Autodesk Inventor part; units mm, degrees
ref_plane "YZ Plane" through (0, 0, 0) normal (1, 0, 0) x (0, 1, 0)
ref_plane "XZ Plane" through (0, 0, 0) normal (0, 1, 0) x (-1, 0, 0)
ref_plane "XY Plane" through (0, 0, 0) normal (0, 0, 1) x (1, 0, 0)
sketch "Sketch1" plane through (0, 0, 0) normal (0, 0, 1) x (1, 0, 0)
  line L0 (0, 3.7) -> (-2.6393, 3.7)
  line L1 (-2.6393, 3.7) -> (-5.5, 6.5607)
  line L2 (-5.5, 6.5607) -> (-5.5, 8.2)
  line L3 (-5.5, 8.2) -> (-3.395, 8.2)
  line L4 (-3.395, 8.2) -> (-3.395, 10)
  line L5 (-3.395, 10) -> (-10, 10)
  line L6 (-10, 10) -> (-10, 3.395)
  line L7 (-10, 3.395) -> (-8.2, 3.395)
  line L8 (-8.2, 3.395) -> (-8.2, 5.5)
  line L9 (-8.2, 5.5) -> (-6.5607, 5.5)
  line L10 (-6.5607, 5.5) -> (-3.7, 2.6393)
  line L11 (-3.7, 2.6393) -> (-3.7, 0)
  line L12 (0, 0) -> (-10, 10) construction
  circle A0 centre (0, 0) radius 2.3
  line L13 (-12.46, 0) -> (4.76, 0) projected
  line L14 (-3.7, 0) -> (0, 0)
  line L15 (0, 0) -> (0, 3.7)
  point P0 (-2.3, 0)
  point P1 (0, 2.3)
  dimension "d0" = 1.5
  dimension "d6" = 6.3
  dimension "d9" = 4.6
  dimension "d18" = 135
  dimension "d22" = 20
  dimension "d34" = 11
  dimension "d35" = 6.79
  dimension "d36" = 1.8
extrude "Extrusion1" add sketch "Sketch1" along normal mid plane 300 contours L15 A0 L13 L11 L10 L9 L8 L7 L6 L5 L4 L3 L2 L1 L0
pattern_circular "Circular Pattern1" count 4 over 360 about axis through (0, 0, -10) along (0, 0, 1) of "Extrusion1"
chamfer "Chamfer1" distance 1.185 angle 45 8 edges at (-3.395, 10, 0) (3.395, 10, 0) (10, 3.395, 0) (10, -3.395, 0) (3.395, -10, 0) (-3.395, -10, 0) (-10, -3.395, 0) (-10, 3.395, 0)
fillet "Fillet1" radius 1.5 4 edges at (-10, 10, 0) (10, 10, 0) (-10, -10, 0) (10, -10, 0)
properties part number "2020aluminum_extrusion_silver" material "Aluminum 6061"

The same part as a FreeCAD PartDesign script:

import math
import FreeCAD as App
import Part
import Sketcher
Q = App.Units.Quantity


def edges_at(feature, points):
    """Names of the edges that pass closest to the given points."""
    edges = feature.Shape.Edges
    near = lambda p: min(range(len(edges)), key=lambda i: edges[i].distToShape(Part.Vertex(*p))[0])
    return sorted({f"Edge{near(p) + 1}" for p in points})

doc = App.newDocument("Part")
body = doc.addObject("PartDesign::Body", "Body")

# Sketch on XY plane
sketch1 = body.newObject("Sketcher::SketchObject", "Sketch")
sketch1.AttachmentSupport = (doc.getObject("XY_Plane"), [""])
sketch1.MapMode = "FlatFace"
sketch1.addGeometry(Part.LineSegment(App.Vector(0, 2.3, 0), App.Vector(0, 3.7, 0)), False)
sketch1.addGeometry(Part.LineSegment(App.Vector(0, 3.7, 0), App.Vector(-2.6393, 3.7, 0)), False)
sketch1.addGeometry(Part.LineSegment(App.Vector(-2.6393, 3.7, 0), App.Vector(-5.5, 6.5607, 0)), False)
sketch1.addGeometry(Part.LineSegment(App.Vector(-5.5, 6.5607, 0), App.Vector(-5.5, 8.2, 0)), False)
sketch1.addGeometry(Part.LineSegment(App.Vector(-5.5, 8.2, 0), App.Vector(-3.395, 8.2, 0)), False)
sketch1.addGeometry(Part.LineSegment(App.Vector(-3.395, 8.2, 0), App.Vector(-3.395, 10, 0)), False)
sketch1.addGeometry(Part.LineSegment(App.Vector(-3.395, 10, 0), App.Vector(-10, 10, 0)), False)
sketch1.addGeometry(Part.LineSegment(App.Vector(-10, 10, 0), App.Vector(-10, 3.395, 0)), False)
sketch1.addGeometry(Part.LineSegment(App.Vector(-10, 3.395, 0), App.Vector(-8.2, 3.395, 0)), False)
sketch1.addGeometry(Part.LineSegment(App.Vector(-8.2, 3.395, 0), App.Vector(-8.2, 5.5, 0)), False)
sketch1.addGeometry(Part.LineSegment(App.Vector(-8.2, 5.5, 0), App.Vector(-6.5607, 5.5, 0)), False)
sketch1.addGeometry(Part.LineSegment(App.Vector(-6.5607, 5.5, 0), App.Vector(-3.7, 2.6393, 0)), False)
sketch1.addGeometry(Part.LineSegment(App.Vector(-3.7, 2.6393, 0), App.Vector(-3.7, 0, 0)), False)
sketch1.addGeometry(Part.LineSegment(App.Vector(-3.7, 0, 0), App.Vector(-2.3, 0, 0)), False)
sketch1.addGeometry(Part.ArcOfCircle(Part.Circle(App.Vector(0, 0, 0), App.Vector(0, 0, 1), 2.3), math.radians(90), math.radians(180)), False)
sketch1.addConstraint(Sketcher.Constraint("Coincident", 0, 2, 1, 1))
sketch1.addConstraint(Sketcher.Constraint("Coincident", 1, 2, 2, 1))
sketch1.addConstraint(Sketcher.Constraint("Coincident", 2, 2, 3, 1))
sketch1.addConstraint(Sketcher.Constraint("Coincident", 3, 2, 4, 1))
sketch1.addConstraint(Sketcher.Constraint("Coincident", 4, 2, 5, 1))
sketch1.addConstraint(Sketcher.Constraint("Coincident", 5, 2, 6, 1))
sketch1.addConstraint(Sketcher.Constraint("Coincident", 6, 2, 7, 1))
sketch1.addConstraint(Sketcher.Constraint("Coincident", 7, 2, 8, 1))
sketch1.addConstraint(Sketcher.Constraint("Coincident", 8, 2, 9, 1))
sketch1.addConstraint(Sketcher.Constraint("Coincident", 9, 2, 10, 1))
sketch1.addConstraint(Sketcher.Constraint("Coincident", 10, 2, 11, 1))
sketch1.addConstraint(Sketcher.Constraint("Coincident", 11, 2, 12, 1))
sketch1.addConstraint(Sketcher.Constraint("Coincident", 12, 2, 13, 1))
sketch1.addConstraint(Sketcher.Constraint("Coincident", 13, 2, 14, 2))
sketch1.addConstraint(Sketcher.Constraint("Coincident", 14, 1, 0, 1))
sketch1.addConstraint(Sketcher.Constraint("Vertical", 0))
sketch1.addConstraint(Sketcher.Constraint("Horizontal", 1))
sketch1.addConstraint(Sketcher.Constraint("Vertical", 3))
sketch1.addConstraint(Sketcher.Constraint("Horizontal", 4))
sketch1.addConstraint(Sketcher.Constraint("Vertical", 5))
sketch1.addConstraint(Sketcher.Constraint("Horizontal", 6))
sketch1.addConstraint(Sketcher.Constraint("Vertical", 7))
sketch1.addConstraint(Sketcher.Constraint("Horizontal", 8))
sketch1.addConstraint(Sketcher.Constraint("Vertical", 9))
sketch1.addConstraint(Sketcher.Constraint("Horizontal", 10))
sketch1.addConstraint(Sketcher.Constraint("Vertical", 12))
sketch1.addConstraint(Sketcher.Constraint("Horizontal", 13))
sketch1.addConstraint(Sketcher.Constraint("Coincident", 14, 3, -1, 1))
sketch1.addConstraint(Sketcher.Constraint("PointOnObject", 0, 2, -2))
sketch1.addConstraint(Sketcher.Constraint("PointOnObject", 12, 2, -1))
sketch1.addConstraint(Sketcher.Constraint("Parallel", 2, 11))
sketch1.addConstraint(Sketcher.Constraint("Equal", 13, 0))
sketch1.addConstraint(Sketcher.Constraint("Equal", 10, 3))
sketch1.addConstraint(Sketcher.Constraint("Equal", 8, 5))
sketch1.addConstraint(Sketcher.Constraint("Equal", 6, 7))
sketch1.addConstraint(Sketcher.Constraint("Equal", 4, 9))
sketch1.addConstraint(Sketcher.Constraint("Equal", 1, 12))
sketch1.addConstraint(Sketcher.Constraint("Radius", 14, 2.3))
sketch1.addConstraint(Sketcher.Constraint("Angle", 2, Q("135 deg")))
sketch1.addConstraint(Sketcher.Constraint("DistanceX", 8, 1, 8, 2, 1.8))
sketch1.addConstraint(Sketcher.Constraint("DistanceY", 1, 2, 5, 2, 6.3))
sketch1.addConstraint(Sketcher.Constraint("DistanceX", 2, 2, 11, 2, 1.8))
sketch1.addConstraint(Sketcher.Constraint("DistanceX", 13, 1, 13, 2, 1.4))
sketch1.addConstraint(Sketcher.Constraint("DistanceX", 4, 1, 4, 2, 2.105))
sketch1.addConstraint(Sketcher.Constraint("DistanceX", 1, 2, 1, 1, 2.6393))
pad1 = body.newObject("PartDesign::Pad", "Pad")
pad1.Profile = sketch1
pad1.Length = 300
pad1.Midplane = True
doc.recompute()

polarpattern = body.newObject("PartDesign::PolarPattern", "PolarPattern")
polarpattern.Originals = [pad1]
polarpattern.Axis = (doc.getObject("Z_Axis"), [""])
polarpattern.Angle = 360
polarpattern.Occurrences = 4
body.Tip = polarpattern
doc.recompute()

chamfer = body.newObject("PartDesign::Chamfer", "Chamfer")
chamfer.Base = (polarpattern, edges_at(polarpattern, [
    (-3.395, 10, 0),
    (3.395, 10, 0),
    (10, 3.395, 0),
    (10, -3.395, 0),
    (3.395, -10, 0),
    (-3.395, -10, 0),
    (-10, -3.395, 0),
    (-10, 3.395, 0),
]))
chamfer.Size = 1.185
doc.recompute()

fillet = body.newObject("PartDesign::Fillet", "Fillet")
fillet.Base = (chamfer, edges_at(chamfer, [
    (-10, 10, 0),
    (10, 10, 0),
    (-10, -10, 0),
    (10, -10, 0),
]))
fillet.Radius = 1.5

doc.recompute()
